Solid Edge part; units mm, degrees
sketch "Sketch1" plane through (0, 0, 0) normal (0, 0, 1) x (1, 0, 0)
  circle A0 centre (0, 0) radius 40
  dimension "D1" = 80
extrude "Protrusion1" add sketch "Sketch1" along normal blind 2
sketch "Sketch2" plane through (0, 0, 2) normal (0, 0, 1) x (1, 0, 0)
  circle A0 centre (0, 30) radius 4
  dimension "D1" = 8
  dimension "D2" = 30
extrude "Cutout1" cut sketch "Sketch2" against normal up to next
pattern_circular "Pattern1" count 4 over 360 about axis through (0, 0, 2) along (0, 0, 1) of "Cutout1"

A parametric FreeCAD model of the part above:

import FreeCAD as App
import Part
import Sketcher
from FreeCAD import Vector

doc = App.newDocument("Part")
body = doc.addObject("PartDesign::Body", "Body")

# Sketch on XY plane
sketch1 = doc.addObject("Sketcher::SketchObject", "Sketch")
body.addObject(sketch1)
sketch1.AttachmentSupport = (doc.XY_Plane, [""])
sketch1.MapMode = "FlatFace"
sketch1.addGeometry(Part.Circle(Vector(0, 0, 0), Vector(0, 0, 1), 40), False)
sketch1.addConstraint(Sketcher.Constraint("Coincident", 0, 3, -1, 1))
sketch1.addConstraint(Sketcher.Constraint("Diameter", 0, 80.0))
pad1 = doc.addObject("PartDesign::Pad", "Pad")
body.addObject(pad1)
pad1.Profile = sketch1
pad1.Length = 2

# Sketch on XY plane
sketch2 = doc.addObject("Sketcher::SketchObject", "Sketch001")
body.addObject(sketch2)
sketch2.AttachmentSupport = (doc.XY_Plane, [""])
sketch2.MapMode = "FlatFace"
sketch2.AttachmentOffset = App.Placement(Vector(0, 0, 2), App.Rotation())
sketch2.addGeometry(Part.Circle(Vector(0, 30, 0), Vector(0, 0, 1), 4), False)
sketch2.addConstraint(Sketcher.Constraint("PointOnObject", 0, 3, -2))
sketch2.addConstraint(Sketcher.Constraint("Diameter", 0, 8.0))
sketch2.addConstraint(Sketcher.Constraint("DistanceY", -1, 1, 0, 3, 30.0))
pocket1 = doc.addObject("PartDesign::Pocket", "Pocket")
body.addObject(pocket1)
pocket1.Profile = sketch2
pocket1.Type = "UpToFirst"
doc.recompute()

polarpattern = doc.addObject("PartDesign::PolarPattern", "PolarPattern")
body.addObject(polarpattern)
polarpattern.Originals = [pocket1]
polarpattern.Axis = (doc.Z_Axis, [""])
polarpattern.Angle = 360
polarpattern.Occurrences = 4
body.Tip = polarpattern

doc.recompute()
